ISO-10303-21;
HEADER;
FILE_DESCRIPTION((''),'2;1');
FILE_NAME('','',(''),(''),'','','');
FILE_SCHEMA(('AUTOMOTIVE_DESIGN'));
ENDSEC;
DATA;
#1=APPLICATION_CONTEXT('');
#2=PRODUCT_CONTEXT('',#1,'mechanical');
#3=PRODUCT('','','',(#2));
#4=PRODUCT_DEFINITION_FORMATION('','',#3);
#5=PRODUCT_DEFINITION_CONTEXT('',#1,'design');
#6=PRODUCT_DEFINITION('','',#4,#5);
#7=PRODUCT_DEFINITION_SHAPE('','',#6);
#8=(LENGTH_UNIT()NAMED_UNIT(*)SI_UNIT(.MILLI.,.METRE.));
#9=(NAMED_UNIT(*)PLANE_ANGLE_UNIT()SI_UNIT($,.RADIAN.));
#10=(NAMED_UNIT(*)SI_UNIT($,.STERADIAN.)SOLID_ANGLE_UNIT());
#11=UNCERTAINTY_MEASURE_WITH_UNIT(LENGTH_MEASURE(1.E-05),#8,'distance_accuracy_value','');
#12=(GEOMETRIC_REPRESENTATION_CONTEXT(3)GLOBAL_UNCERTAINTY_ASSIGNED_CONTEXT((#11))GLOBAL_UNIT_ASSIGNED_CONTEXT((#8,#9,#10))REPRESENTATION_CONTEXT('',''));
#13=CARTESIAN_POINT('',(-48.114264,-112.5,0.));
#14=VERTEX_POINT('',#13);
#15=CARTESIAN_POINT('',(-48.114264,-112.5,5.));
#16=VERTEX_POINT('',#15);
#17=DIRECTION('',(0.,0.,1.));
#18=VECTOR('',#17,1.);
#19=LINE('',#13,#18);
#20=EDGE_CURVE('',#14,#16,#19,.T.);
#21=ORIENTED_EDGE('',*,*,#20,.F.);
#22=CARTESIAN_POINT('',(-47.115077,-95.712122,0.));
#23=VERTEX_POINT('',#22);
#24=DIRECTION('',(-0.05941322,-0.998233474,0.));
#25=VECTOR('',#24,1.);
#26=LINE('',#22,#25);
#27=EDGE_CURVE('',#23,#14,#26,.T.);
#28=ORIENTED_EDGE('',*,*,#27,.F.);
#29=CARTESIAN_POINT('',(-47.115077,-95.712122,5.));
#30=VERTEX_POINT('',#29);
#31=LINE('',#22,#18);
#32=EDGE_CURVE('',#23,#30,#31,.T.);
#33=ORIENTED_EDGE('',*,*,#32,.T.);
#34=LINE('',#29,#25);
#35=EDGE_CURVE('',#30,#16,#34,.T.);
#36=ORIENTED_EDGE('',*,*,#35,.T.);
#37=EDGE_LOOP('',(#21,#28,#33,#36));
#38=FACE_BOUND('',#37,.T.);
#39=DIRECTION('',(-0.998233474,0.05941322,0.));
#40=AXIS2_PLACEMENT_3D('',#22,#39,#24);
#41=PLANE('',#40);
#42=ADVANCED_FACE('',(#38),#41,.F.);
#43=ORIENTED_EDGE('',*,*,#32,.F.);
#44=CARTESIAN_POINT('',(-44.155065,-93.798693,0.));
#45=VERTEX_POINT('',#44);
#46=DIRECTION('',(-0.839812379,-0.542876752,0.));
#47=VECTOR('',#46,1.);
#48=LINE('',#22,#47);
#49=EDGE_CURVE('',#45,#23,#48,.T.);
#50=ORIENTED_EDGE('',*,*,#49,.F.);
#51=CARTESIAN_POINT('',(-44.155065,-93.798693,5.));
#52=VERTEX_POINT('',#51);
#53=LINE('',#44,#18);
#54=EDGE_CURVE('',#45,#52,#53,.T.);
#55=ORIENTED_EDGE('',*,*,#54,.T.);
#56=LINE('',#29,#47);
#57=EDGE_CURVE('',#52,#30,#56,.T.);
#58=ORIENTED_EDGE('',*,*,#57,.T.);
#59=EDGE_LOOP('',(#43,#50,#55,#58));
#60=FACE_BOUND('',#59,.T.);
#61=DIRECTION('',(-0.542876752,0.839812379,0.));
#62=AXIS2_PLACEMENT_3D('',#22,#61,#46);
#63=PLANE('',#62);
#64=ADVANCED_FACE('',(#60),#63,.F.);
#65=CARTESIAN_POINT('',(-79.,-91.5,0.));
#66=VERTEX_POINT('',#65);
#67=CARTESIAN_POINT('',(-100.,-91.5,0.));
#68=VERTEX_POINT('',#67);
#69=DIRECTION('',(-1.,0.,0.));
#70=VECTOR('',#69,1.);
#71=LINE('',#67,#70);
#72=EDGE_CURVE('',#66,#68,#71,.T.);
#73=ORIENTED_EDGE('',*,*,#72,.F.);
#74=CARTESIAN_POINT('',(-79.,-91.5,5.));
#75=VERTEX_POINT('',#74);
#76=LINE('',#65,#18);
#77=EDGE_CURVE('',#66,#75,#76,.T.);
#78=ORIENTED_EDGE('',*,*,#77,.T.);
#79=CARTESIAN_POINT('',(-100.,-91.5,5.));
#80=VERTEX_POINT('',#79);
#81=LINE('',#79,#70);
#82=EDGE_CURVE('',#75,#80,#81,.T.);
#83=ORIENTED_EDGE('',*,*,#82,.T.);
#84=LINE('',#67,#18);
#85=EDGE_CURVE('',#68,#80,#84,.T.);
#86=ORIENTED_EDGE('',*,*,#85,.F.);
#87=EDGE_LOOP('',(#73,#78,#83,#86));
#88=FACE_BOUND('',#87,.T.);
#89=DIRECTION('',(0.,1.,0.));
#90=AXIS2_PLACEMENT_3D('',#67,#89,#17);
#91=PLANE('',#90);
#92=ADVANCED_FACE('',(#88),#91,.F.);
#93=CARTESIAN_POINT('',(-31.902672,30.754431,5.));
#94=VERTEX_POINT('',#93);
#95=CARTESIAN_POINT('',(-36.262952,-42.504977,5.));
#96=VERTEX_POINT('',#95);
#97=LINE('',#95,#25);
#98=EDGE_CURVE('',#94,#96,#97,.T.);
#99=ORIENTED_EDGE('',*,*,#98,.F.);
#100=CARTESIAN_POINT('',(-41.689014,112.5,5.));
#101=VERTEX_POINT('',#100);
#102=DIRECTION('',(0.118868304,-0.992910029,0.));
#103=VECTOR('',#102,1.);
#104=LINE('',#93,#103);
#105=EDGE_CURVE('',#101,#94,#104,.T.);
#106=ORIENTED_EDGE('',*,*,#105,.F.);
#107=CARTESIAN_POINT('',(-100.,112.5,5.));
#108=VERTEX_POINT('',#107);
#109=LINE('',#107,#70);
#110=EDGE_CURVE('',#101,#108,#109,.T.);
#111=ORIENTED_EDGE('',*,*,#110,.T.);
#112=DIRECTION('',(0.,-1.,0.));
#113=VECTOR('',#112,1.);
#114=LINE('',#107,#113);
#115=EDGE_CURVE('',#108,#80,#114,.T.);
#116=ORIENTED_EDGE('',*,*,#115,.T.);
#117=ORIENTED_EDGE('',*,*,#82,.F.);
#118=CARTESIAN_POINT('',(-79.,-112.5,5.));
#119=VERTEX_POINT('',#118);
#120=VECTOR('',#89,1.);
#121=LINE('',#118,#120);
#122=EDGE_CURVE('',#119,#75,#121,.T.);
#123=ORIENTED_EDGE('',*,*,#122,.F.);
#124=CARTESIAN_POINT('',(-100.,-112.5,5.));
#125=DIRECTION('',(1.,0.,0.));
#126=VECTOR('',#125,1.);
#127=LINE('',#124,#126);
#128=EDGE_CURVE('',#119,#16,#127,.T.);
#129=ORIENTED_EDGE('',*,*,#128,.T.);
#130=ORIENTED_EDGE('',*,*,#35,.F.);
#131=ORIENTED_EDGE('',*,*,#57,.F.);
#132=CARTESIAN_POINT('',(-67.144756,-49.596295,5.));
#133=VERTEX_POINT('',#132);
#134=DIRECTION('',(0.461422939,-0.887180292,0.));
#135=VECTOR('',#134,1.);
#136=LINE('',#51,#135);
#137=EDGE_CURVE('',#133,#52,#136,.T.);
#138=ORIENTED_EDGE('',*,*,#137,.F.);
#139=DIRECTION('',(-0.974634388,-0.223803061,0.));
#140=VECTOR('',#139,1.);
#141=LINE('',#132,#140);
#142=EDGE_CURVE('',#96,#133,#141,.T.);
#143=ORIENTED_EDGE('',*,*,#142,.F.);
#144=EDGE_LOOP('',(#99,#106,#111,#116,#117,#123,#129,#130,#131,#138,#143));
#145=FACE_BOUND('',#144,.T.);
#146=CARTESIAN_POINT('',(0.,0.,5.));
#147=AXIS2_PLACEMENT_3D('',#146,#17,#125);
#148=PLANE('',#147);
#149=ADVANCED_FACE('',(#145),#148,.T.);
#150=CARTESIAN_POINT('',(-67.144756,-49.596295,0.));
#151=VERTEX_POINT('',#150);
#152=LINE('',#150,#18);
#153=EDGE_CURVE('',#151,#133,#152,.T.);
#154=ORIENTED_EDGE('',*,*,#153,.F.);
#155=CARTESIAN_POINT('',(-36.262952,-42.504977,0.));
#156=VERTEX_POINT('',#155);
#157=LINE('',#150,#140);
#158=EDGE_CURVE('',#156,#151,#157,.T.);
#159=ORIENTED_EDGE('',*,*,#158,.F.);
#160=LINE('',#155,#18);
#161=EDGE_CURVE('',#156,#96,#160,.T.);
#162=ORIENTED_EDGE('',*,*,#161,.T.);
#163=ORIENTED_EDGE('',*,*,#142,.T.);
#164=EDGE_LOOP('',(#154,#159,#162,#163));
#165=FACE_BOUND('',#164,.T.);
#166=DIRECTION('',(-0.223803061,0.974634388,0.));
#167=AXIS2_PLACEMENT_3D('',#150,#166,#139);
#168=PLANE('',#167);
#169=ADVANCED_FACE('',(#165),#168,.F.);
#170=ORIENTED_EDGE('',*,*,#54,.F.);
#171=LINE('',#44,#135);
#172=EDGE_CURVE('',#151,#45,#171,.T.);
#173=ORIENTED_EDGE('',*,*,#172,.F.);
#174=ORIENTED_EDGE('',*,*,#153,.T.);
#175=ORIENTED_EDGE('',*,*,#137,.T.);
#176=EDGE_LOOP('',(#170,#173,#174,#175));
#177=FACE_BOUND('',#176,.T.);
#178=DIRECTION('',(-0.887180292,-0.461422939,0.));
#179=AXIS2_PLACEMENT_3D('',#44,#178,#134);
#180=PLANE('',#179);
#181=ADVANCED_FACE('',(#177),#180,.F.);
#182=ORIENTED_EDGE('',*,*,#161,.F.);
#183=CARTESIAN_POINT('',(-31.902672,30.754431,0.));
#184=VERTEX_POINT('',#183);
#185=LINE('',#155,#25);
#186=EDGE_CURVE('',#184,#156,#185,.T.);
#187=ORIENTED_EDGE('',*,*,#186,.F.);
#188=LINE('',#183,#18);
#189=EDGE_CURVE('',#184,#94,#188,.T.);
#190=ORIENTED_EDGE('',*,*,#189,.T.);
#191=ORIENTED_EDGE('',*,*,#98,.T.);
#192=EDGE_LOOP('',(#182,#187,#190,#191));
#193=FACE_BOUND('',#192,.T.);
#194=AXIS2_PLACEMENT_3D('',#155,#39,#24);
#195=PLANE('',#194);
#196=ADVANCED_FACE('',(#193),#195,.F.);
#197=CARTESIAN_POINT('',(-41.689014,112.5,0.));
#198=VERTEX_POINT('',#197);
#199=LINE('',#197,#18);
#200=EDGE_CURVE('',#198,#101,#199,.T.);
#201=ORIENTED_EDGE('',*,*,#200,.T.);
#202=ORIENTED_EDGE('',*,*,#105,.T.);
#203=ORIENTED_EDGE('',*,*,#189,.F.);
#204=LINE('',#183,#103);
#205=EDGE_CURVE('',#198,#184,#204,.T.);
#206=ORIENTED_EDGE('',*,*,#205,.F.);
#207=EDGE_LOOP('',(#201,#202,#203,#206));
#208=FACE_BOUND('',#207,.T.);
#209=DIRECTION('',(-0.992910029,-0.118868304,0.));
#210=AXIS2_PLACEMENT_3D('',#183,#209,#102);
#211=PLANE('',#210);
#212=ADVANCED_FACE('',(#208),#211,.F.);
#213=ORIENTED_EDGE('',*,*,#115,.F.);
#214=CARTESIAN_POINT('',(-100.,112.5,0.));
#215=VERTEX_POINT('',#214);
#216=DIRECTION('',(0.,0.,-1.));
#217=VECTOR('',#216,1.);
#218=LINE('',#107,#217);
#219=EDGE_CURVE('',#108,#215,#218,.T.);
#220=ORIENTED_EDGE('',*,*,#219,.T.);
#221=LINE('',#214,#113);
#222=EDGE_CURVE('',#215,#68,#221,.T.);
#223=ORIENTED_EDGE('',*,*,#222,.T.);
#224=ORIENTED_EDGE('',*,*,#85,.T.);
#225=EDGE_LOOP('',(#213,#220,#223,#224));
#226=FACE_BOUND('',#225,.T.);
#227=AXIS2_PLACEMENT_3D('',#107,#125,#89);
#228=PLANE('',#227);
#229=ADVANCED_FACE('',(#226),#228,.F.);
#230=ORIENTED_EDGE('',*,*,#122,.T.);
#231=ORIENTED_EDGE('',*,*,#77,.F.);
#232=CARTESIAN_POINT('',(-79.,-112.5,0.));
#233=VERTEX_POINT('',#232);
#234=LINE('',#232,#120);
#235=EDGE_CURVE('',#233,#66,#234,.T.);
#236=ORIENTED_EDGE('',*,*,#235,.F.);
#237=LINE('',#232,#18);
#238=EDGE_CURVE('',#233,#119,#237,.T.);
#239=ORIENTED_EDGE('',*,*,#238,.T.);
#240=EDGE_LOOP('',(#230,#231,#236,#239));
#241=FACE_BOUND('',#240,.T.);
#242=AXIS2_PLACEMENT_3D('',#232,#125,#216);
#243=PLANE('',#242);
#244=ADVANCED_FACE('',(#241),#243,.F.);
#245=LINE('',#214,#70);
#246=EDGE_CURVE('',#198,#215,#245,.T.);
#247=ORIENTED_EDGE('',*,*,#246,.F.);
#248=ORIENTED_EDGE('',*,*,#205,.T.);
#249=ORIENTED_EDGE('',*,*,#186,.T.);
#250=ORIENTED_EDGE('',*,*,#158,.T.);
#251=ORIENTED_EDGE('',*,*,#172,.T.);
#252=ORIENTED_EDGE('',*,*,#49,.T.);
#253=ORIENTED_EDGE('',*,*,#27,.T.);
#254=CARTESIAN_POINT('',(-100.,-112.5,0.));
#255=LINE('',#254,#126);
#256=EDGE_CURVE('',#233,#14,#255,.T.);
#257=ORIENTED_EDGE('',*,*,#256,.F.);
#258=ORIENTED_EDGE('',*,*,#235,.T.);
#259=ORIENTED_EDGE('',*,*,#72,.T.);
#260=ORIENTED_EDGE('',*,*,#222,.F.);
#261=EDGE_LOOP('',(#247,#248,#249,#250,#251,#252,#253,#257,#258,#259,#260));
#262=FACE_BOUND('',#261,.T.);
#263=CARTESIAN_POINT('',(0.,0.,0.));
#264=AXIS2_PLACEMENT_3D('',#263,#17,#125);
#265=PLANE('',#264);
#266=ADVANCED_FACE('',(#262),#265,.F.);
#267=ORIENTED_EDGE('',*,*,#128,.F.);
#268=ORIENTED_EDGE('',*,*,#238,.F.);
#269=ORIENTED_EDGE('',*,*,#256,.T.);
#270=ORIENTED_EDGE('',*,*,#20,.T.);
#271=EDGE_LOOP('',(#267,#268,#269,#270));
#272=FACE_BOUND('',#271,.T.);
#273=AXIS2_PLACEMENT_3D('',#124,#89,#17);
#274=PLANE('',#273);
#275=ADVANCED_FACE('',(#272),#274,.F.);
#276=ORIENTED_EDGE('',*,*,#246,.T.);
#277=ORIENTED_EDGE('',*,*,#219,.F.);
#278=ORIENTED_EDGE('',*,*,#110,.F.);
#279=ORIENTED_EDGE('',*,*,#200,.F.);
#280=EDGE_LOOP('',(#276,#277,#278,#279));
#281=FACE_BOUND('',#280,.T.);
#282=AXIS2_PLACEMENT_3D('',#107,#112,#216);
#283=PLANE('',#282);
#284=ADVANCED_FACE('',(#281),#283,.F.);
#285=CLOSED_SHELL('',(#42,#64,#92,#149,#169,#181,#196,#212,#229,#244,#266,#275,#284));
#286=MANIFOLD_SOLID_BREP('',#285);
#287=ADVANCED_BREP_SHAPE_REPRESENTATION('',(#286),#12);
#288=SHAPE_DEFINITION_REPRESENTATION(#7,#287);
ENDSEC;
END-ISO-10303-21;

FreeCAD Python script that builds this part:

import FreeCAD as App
import Part
import Sketcher

V = App.Vector
Q = App.Units.Quantity


def add_polygon(sketch, points):
    """Adds a closed chain of lines whose ends are joined by coincident constraints."""
    first, n = sketch.GeometryCount, len(points)
    for a, b in zip(points, points[1:] + points[:1]):
        sketch.addGeometry(Part.LineSegment(App.Vector(*a, 0), App.Vector(*b, 0)), False)
    for i in range(n):
        sketch.addConstraint(Sketcher.Constraint("Coincident", first + i, 2, first + (i + 1) % n, 1))

doc = App.newDocument("Part")
body = doc.addObject("PartDesign::Body", "Body")

# Sketch on XY plane
sketch1 = body.newObject("Sketcher::SketchObject", "Sketch")
sketch1.AttachmentSupport = (doc.getObject("XY_Plane"), [""])
sketch1.MapMode = "FlatFace"
add_polygon(sketch1, [(-100, 112), (-100, -112), (100, -112), (100, 112)])  # lines 0-3
sketch1.addConstraint(Sketcher.Constraint("Vertical", 0))
sketch1.addConstraint(Sketcher.Constraint("Horizontal", 1))
sketch1.addConstraint(Sketcher.Constraint("Vertical", 2))
sketch1.addConstraint(Sketcher.Constraint("Horizontal", 3))
sketch1.addConstraint(Sketcher.Constraint("Symmetric", 0, 2, 2, 2, -1, 1))
sketch1.addConstraint(Sketcher.Constraint("DistanceX", 1, 1, 1, 2, Q("200 mm")))
sketch1.addConstraint(Sketcher.Constraint("DistanceY", 0, 2, 0, 1, Q("225 mm")))
pad1 = body.newObject("PartDesign::Pad", "Pad")
pad1.Profile = sketch1
pad1.Length = 5

# Sketch on XY plane
sketch2 = body.newObject("Sketcher::SketchObject", "Sketch001")
sketch2.AttachmentSupport = (doc.getObject("XY_Plane"), [""])
sketch2.MapMode = "FlatFace"
sketch2.AttachmentOffset = App.Placement(V(0, 0, 5), App.Rotation())
add_polygon(sketch2, [(-100, -92), (-100, -112), (-79, -112), (-79, -92)])  # lines 0-3
sketch2.addConstraint(Sketcher.Constraint("Vertical", 0))
sketch2.addConstraint(Sketcher.Constraint("Horizontal", 1))
sketch2.addConstraint(Sketcher.Constraint("Vertical", 2))
sketch2.addConstraint(Sketcher.Constraint("Horizontal", 3))
sketch2.addConstraint(Sketcher.Constraint("Equal", 3, 0))
sketch2.addConstraint(Sketcher.Constraint("DistanceX", 1, 1, 1, 2, Q("21 mm")))
sketch2.addConstraint(Sketcher.Constraint("DistanceX", 0, 2, -1, 1, Q("100 mm")))
sketch2.addConstraint(Sketcher.Constraint("DistanceY", 0, 2, -1, 1, Q("112.5 mm")))
pocket1 = body.newObject("PartDesign::Pocket", "Pocket")
pocket1.Profile = sketch2
pocket1.Type = "ThroughAll"

# Sketch on XY plane
sketch3 = body.newObject("Sketcher::SketchObject", "Sketch002")
sketch3.AttachmentSupport = (doc.getObject("XY_Plane"), [""])
sketch3.MapMode = "FlatFace"
sketch3.AttachmentOffset = App.Placement(V(0, 0, 5), App.Rotation())
add_polygon(sketch3, [(-47.1, -95.7), (-48.1, -112.5), (100, -112.5), (100, 112.5), (-41.7, 112.5), (-31.9, 30.8), (-36.3, -42.5), (-67.1, -49.6), (-44.2, -93.8)])  # lines 0-8
sketch3.addConstraint(Sketcher.Constraint("Horizontal", 1))
sketch3.addConstraint(Sketcher.Constraint("Vertical", 2))
sketch3.addConstraint(Sketcher.Constraint("Horizontal", 3))
sketch3.addConstraint(Sketcher.Constraint("Parallel", 0, 5))
sketch3.addConstraint(Sketcher.Constraint("DistanceY", 2, 1, 2, 2, Q("225 mm")))
sketch3.addConstraint(Sketcher.Constraint("DistanceX", -1, 1, 1, 2, Q("100 mm")))
sketch3.addConstraint(Sketcher.Constraint("DistanceY", 0, 2, -1, 1, Q("112.5 mm")))
sketch3.addConstraint(Sketcher.Constraint("DistanceX", 0, 2, 7, 2, Q("3.959199 mm")))
sketch3.addConstraint(Sketcher.Constraint("DistanceY", 7, 2, 6, 2, Q("44.202398 mm")))
sketch3.addConstraint(Sketcher.Constraint("Distance", 4, Q("82.329281 mm")))
sketch3.addConstraint(Sketcher.Constraint("Distance", 5, Q("73.389051 mm")))
sketch3.addConstraint(Sketcher.Constraint("Distance", 8, Q("3.524611 mm")))
sketch3.addConstraint(Sketcher.Constraint("DistanceX", 1, 1, 1, 2, Q("148.114264 mm")))
sketch3.addConstraint(Sketcher.Constraint("DistanceX", 3, 2, 3, 1, Q("141.689014 mm")))
sketch3.addConstraint(Sketcher.Constraint("DistanceY", -1, 1, 4, 2, Q("30.754431 mm")))
sketch3.addConstraint(Sketcher.Constraint("DistanceX", 0, 2, 5, 2, Q("11.851311 mm")))
sketch3.addConstraint(Sketcher.Constraint("DistanceX", 6, 2, 3, 2, Q("25.455741 mm")))
sketch3.addConstraint(Sketcher.Constraint("DistanceX", 8, 2, 7, 2, Q("2.960012 mm")))
pocket2 = body.newObject("PartDesign::Pocket", "Pocket001")
pocket2.Profile = sketch3
pocket2.Type = "ThroughAll"

doc.recompute()
